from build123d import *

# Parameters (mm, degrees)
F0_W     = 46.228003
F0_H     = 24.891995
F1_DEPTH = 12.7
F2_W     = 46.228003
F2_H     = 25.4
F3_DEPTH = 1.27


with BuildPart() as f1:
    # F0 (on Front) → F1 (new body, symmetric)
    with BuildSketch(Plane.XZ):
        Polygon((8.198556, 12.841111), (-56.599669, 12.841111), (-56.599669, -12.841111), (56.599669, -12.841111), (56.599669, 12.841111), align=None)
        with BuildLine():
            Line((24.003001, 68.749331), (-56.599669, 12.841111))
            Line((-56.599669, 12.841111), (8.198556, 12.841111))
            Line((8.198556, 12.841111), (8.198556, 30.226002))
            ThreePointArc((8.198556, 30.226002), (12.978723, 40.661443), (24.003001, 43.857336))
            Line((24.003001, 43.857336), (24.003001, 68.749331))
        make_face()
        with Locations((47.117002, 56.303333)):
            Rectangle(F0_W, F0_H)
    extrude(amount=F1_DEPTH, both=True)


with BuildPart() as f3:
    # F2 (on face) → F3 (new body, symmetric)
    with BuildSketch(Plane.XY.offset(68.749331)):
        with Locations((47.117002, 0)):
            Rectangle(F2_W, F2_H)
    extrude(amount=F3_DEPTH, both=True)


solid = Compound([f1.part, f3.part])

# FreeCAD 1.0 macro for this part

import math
import FreeCAD as App
import Part
import Sketcher

V = App.Vector
Q = App.Units.Quantity

doc = App.newDocument("Part")
body = doc.addObject("PartDesign::Body", "Body")

# Sketch on XZ plane
sketch1 = body.newObject("Sketcher::SketchObject", "Sketch")
sketch1.AttachmentSupport = (doc.getObject("XZ_Plane"), [""])
sketch1.MapMode = "FlatFace"
sketch1.addGeometry(Part.LineSegment(V(-57, 13, 0), V(-57, -13, 0)), False)
sketch1.addGeometry(Part.LineSegment(V(-57, -13, 0), V(57, -13, 0)), False)
sketch1.addGeometry(Part.LineSegment(V(57, -13, 0), V(57, 13, 0)), False)
sketch1.addGeometry(Part.LineSegment(V(57, 13, 0), V(8, 13, 0)), False)
sketch1.addGeometry(Part.LineSegment(V(8, 13, 0), V(8, 30, 0)), False)
sketch1.addGeometry(Part.ArcOfCircle(Part.Circle(V(22, 30, 0), V(0, 0, 1), 14), math.radians(82), math.radians(180)), False)
sketch1.addGeometry(Part.LineSegment(V(24, 44, 0), V(70, 44, 0)), False)
sketch1.addGeometry(Part.LineSegment(V(70, 44, 0), V(70, 69, 0)), False)
sketch1.addGeometry(Part.LineSegment(V(70, 69, 0), V(24, 69, 0)), False)
sketch1.addGeometry(Part.LineSegment(V(24, 69, 0), V(-57, 13, 0)), False)
sketch1.addConstraint(Sketcher.Constraint("Coincident", 0, 2, 1, 1))
sketch1.addConstraint(Sketcher.Constraint("Coincident", 1, 2, 2, 1))
sketch1.addConstraint(Sketcher.Constraint("Coincident", 2, 2, 3, 1))
sketch1.addConstraint(Sketcher.Constraint("Coincident", 3, 2, 4, 1))
sketch1.addConstraint(Sketcher.Constraint("Tangent", 4, 2, 5, 2))
sketch1.addConstraint(Sketcher.Constraint("Coincident", 5, 1, 6, 1))
sketch1.addConstraint(Sketcher.Constraint("Coincident", 6, 2, 7, 1))
sketch1.addConstraint(Sketcher.Constraint("Coincident", 7, 2, 8, 1))
sketch1.addConstraint(Sketcher.Constraint("Coincident", 8, 2, 9, 1))
sketch1.addConstraint(Sketcher.Constraint("Coincident", 9, 2, 0, 1))
sketch1.addConstraint(Sketcher.Constraint("Vertical", 0))
sketch1.addConstraint(Sketcher.Constraint("Horizontal", 1))
sketch1.addConstraint(Sketcher.Constraint("Vertical", 2))
sketch1.addConstraint(Sketcher.Constraint("Horizontal", 3))
sketch1.addConstraint(Sketcher.Constraint("Vertical", 4))
sketch1.addConstraint(Sketcher.Constraint("Horizontal", 6))
sketch1.addConstraint(Sketcher.Constraint("Vertical", 7))
sketch1.addConstraint(Sketcher.Constraint("Horizontal", 8))
sketch1.addConstraint(Sketcher.Constraint("Symmetric", 0, 2, 2, 2, -1, 1))
sketch1.addConstraint(Sketcher.Constraint("Horizontal", 3, 2, 9, 2))
sketch1.addConstraint(Sketcher.Constraint("Vertical", 5, 1, 8, 2))
sketch1.addConstraint(Sketcher.Constraint("DistanceX", 6, 1, 6, 2, Q("1.8200001 in")))
sketch1.addConstraint(Sketcher.Constraint("DistanceY", 7, 1, 7, 2, Q("0.9799998 in")))
sketch1.addConstraint(Sketcher.Constraint("DistanceY", -1, 1, 5, 3, Q("1.1900001 in")))
sketch1.addConstraint(Sketcher.Constraint("DistanceX", -1, 1, 5, 1, Q("0.945 in")))
sketch1.addConstraint(Sketcher.Constraint("Radius", 5, Q("13.780736 mm")))
sketch1.addConstraint(Sketcher.Constraint("DistanceY", 0, 2, 0, 1, Q("25.682222 mm")))
sketch1.addConstraint(Sketcher.Constraint("Distance", 9, Q("98.094441 mm")))
sketch1.addConstraint(Sketcher.Constraint("DistanceX", 1, 1, 1, 2, Q("113.199338 mm")))
pad1 = body.newObject("PartDesign::Pad", "Pad")
pad1.Profile = sketch1
pad1.Length = Q("1 in")
pad1.Midplane = True
body2 = doc.addObject("PartDesign::Body", "Body001")

# Sketch on XY plane
sketch2 = body2.newObject("Sketcher::SketchObject", "Sketch001")
sketch2.AttachmentSupport = (doc.getObject("XY_Plane001"), [""])
sketch2.MapMode = "FlatFace"
sketch2.AttachmentOffset = App.Placement(V(0, 0, 68.749331), App.Rotation())
sketch2.addGeometry(Part.LineSegment(V(24, 13, 0), V(24, -13, 0)), False)
sketch2.addGeometry(Part.LineSegment(V(24, -13, 0), V(70, -13, 0)), False)
sketch2.addGeometry(Part.LineSegment(V(70, -13, 0), V(70, 13, 0)), False)
sketch2.addGeometry(Part.LineSegment(V(70, 13, 0), V(24, 13, 0)), False)
sketch2.addConstraint(Sketcher.Constraint("Coincident", 0, 2, 1, 1))
sketch2.addConstraint(Sketcher.Constraint("Coincident", 1, 2, 2, 1))
sketch2.addConstraint(Sketcher.Constraint("Coincident", 2, 2, 3, 1))
sketch2.addConstraint(Sketcher.Constraint("Coincident", 3, 2, 0, 1))
sketch2.addConstraint(Sketcher.Constraint("Vertical", 0))
sketch2.addConstraint(Sketcher.Constraint("Horizontal", 1))
sketch2.addConstraint(Sketcher.Constraint("Vertical", 2))
sketch2.addConstraint(Sketcher.Constraint("Horizontal", 3))
sketch2.addConstraint(Sketcher.Constraint("DistanceY", 0, 2, 0, 1, Q("1 in")))
sketch2.addConstraint(Sketcher.Constraint("DistanceX", 1, 1, 1, 2, Q("1.8200001 in")))
sketch2.addConstraint(Sketcher.Constraint("DistanceY", 0, 2, -1, 1, Q("0.5 in")))
sketch2.addConstraint(Sketcher.Constraint("DistanceX", -1, 1, 0, 2, Q("0.945 in")))
pad2 = body2.newObject("PartDesign::Pad", "Pad001")
pad2.Profile = sketch2
pad2.Length = Q("0.1 in")
pad2.Midplane = True

doc.recompute()
